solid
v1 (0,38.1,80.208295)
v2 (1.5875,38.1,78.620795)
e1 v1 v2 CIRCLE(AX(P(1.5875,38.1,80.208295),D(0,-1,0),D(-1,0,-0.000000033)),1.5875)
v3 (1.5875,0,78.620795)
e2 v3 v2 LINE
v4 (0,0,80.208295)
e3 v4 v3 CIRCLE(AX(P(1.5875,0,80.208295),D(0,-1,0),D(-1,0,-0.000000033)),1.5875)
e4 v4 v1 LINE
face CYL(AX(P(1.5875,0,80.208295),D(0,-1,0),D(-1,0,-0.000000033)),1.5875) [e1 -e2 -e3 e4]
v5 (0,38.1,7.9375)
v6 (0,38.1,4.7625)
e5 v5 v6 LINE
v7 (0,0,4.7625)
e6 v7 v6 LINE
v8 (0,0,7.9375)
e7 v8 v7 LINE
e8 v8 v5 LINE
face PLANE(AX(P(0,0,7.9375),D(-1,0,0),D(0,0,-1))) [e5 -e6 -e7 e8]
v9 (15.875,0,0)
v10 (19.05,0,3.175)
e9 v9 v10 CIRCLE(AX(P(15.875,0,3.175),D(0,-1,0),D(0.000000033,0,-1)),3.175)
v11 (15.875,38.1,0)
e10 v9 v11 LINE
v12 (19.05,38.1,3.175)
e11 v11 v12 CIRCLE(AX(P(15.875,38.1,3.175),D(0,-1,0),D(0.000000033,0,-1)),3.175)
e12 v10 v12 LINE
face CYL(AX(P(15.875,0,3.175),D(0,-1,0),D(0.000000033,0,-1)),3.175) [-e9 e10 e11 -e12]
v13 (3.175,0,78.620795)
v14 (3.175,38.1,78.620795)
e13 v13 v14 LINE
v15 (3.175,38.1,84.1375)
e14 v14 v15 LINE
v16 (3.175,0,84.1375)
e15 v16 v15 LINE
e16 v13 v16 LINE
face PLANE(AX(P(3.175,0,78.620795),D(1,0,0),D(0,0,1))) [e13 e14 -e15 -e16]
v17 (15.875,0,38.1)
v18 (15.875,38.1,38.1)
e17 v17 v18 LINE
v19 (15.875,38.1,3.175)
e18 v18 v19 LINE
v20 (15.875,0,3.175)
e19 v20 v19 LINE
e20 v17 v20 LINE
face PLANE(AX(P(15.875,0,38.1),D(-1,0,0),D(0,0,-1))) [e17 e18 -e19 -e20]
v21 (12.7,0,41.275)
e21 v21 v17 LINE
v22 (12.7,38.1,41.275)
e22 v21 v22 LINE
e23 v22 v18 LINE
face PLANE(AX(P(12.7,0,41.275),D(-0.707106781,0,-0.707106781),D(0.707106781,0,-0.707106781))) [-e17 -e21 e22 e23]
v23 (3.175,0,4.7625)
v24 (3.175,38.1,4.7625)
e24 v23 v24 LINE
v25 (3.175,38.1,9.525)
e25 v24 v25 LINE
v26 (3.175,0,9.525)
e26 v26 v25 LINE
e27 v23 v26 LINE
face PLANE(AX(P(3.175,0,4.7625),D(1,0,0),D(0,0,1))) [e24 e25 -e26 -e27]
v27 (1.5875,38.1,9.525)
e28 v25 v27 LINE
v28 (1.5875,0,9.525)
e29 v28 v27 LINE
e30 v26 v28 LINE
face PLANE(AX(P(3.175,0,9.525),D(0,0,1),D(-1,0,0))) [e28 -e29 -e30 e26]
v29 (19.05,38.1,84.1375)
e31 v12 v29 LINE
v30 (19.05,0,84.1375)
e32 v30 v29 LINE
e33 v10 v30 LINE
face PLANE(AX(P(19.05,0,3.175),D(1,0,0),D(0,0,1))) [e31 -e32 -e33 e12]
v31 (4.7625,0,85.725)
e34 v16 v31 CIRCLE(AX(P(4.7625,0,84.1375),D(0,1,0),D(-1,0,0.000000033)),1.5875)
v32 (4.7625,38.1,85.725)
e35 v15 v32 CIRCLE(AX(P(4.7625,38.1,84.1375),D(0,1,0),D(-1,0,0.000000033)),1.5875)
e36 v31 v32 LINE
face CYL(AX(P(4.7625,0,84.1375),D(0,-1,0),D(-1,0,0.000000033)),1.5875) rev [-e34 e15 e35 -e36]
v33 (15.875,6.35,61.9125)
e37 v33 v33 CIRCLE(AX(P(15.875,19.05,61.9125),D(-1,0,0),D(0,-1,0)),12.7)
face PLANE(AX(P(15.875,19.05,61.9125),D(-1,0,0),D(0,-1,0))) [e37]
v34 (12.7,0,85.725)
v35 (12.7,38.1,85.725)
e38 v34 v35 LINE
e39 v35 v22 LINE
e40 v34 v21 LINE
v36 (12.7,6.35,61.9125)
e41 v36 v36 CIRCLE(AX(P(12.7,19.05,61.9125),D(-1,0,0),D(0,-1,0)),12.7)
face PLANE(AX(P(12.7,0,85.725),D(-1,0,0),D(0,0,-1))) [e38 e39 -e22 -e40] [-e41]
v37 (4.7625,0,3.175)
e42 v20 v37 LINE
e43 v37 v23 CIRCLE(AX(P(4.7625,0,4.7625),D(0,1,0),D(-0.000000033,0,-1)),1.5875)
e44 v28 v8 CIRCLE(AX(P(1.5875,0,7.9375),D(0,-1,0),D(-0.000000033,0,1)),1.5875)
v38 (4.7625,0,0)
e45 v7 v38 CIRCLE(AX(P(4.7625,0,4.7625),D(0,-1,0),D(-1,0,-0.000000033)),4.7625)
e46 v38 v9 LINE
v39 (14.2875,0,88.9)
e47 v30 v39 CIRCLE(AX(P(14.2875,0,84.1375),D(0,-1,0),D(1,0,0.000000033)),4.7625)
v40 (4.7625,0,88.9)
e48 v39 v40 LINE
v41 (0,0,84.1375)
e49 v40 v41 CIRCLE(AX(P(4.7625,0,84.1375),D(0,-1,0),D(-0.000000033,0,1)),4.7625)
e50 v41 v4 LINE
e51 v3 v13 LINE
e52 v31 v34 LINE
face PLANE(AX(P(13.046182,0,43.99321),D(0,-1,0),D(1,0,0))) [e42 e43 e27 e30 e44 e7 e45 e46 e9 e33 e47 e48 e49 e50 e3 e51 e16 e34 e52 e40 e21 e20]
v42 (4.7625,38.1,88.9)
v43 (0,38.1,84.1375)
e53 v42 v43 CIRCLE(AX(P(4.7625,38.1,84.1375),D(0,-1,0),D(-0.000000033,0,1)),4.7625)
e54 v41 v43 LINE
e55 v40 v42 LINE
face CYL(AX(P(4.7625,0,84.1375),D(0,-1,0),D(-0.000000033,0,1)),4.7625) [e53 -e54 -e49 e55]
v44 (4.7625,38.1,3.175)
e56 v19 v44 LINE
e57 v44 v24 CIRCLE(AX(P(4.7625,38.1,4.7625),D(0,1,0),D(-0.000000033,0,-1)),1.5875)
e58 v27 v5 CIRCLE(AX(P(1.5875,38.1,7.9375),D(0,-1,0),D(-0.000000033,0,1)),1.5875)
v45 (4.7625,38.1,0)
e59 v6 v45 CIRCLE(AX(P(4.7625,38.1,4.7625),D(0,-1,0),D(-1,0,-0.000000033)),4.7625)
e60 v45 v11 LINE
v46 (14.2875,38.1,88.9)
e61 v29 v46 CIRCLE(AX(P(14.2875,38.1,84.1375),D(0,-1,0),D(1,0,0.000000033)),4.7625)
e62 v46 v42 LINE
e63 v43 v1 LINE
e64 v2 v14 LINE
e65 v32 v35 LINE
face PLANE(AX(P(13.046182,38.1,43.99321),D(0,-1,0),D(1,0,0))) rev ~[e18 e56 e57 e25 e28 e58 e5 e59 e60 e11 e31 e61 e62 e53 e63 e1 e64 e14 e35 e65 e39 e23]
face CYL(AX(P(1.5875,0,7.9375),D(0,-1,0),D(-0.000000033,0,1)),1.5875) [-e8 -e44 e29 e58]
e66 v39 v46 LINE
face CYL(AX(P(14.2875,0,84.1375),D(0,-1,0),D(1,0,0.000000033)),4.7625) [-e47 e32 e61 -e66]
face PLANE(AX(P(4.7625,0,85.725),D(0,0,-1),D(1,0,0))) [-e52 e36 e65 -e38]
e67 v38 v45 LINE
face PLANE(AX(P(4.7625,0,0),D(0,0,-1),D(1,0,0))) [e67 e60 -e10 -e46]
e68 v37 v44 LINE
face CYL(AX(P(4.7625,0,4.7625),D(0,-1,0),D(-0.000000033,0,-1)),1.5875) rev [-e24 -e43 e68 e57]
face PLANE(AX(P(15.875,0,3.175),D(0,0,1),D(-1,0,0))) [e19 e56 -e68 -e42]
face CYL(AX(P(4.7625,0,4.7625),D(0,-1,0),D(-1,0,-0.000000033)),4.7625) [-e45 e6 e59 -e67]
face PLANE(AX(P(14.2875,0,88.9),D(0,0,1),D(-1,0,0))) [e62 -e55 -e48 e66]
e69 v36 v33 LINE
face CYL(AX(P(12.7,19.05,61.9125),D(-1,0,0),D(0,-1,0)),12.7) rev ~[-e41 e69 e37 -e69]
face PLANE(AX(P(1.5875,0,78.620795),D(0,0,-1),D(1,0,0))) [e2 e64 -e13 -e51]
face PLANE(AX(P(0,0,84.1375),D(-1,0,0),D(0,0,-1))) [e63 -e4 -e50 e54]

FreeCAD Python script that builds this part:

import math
import FreeCAD as App
import Part
import Sketcher

V = App.Vector
Q = App.Units.Quantity

doc = App.newDocument("Part")
body = doc.addObject("PartDesign::Body", "Body")

sketch1 = body.newObject("Sketcher::SketchObject", "Sketch")
sketch1.AttachmentSupport = (doc.getObject("XZ_Plane"), [""])
sketch1.MapMode = "FlatFace"
sketch1.addGeometry([
    Part.ArcOfCircle(Part.Circle(V(4.8, 4.8, 0), V(0, 0, 1), 4.8), math.radians(-180), math.radians(-90)),
    Part.LineSegment(V(4.8, 0, 0), V(15.9, 0, 0)),
    Part.ArcOfCircle(Part.Circle(V(15.9, 3.2, 0), V(0, 0, 1), 3.2), math.radians(-90), math.radians(0)),
    Part.LineSegment(V(19.1, 3.2, 0), V(19.1, 84.1, 0)),
    Part.ArcOfCircle(Part.Circle(V(14.3, 84.1, 0), V(0, 0, 1), 4.8), math.radians(0), math.radians(90)),
    Part.LineSegment(V(14.3, 88.9, 0), V(4.8, 88.9, 0)),
    Part.ArcOfCircle(Part.Circle(V(4.8, 84.1, 0), V(0, 0, 1), 4.8), math.radians(90), math.radians(180)),
    Part.LineSegment(V(0, 84.1, 0), V(0, 80.2, 0)),
    Part.ArcOfCircle(Part.Circle(V(1.6, 80.2, 0), V(0, 0, 1), 1.6), math.radians(-180), math.radians(-90)),
    Part.LineSegment(V(1.6, 78.6, 0), V(3.2, 78.6, 0)),
    Part.LineSegment(V(3.2, 78.6, 0), V(3.2, 84.1, 0)),
    Part.ArcOfCircle(Part.Circle(V(4.8, 84.1, 0), V(0, 0, 1), 1.6), math.radians(90), math.radians(180)),
    Part.LineSegment(V(4.8, 85.7, 0), V(12.7, 85.7, 0)),
    Part.LineSegment(V(12.7, 85.7, 0), V(12.7, 41.3, 0)),
    Part.LineSegment(V(12.7, 41.3, 0), V(15.9, 38.1, 0)),
    Part.LineSegment(V(15.9, 38.1, 0), V(15.9, 3.2, 0)),
    Part.LineSegment(V(15.9, 3.2, 0), V(4.8, 3.2, 0)),
    Part.ArcOfCircle(Part.Circle(V(4.8, 4.8, 0), V(0, 0, 1), 1.6), math.radians(-180), math.radians(-90)),
    Part.LineSegment(V(3.2, 4.8, 0), V(3.2, 9.5, 0)),
    Part.LineSegment(V(3.2, 9.5, 0), V(1.6, 9.5, 0)),
    Part.ArcOfCircle(Part.Circle(V(1.6, 7.9, 0), V(0, 0, 1), 1.6), math.radians(90), math.radians(180)),
    Part.LineSegment(V(0, 7.9, 0), V(0, 4.8, 0)),
], False)
sketch1.addConstraint([
    Sketcher.Constraint("Tangent", 0, 2, 1, 1),
    Sketcher.Constraint("Tangent", 1, 2, 2, 1),
    Sketcher.Constraint("Tangent", 2, 2, 3, 1),
    Sketcher.Constraint("Tangent", 3, 2, 4, 1),
    Sketcher.Constraint("Tangent", 4, 2, 5, 1),
    Sketcher.Constraint("Tangent", 5, 2, 6, 1),
    Sketcher.Constraint("Tangent", 6, 2, 7, 1),
    Sketcher.Constraint("Tangent", 7, 2, 8, 1),
    Sketcher.Constraint("Tangent", 8, 2, 9, 1),
    Sketcher.Constraint("Coincident", 9, 2, 10, 1),
    Sketcher.Constraint("Tangent", 10, 2, 11, 2),
    Sketcher.Constraint("Tangent", 11, 1, 12, 1),
    Sketcher.Constraint("Coincident", 12, 2, 13, 1),
    Sketcher.Constraint("Coincident", 13, 2, 14, 1),
    Sketcher.Constraint("Coincident", 14, 2, 15, 1),
    Sketcher.Constraint("Coincident", 15, 2, 16, 1),
    Sketcher.Constraint("Tangent", 16, 2, 17, 2),
    Sketcher.Constraint("Tangent", 17, 1, 18, 1),
    Sketcher.Constraint("Coincident", 18, 2, 19, 1),
    Sketcher.Constraint("Tangent", 19, 2, 20, 1),
    Sketcher.Constraint("Tangent", 20, 2, 21, 1),
    Sketcher.Constraint("Tangent", 21, 2, 0, 1),
    Sketcher.Constraint("Horizontal", 1),
    Sketcher.Constraint("Vertical", 3),
    Sketcher.Constraint("Horizontal", 5),
    Sketcher.Constraint("Vertical", 7),
    Sketcher.Constraint("Horizontal", 9),
    Sketcher.Constraint("Vertical", 10),
    Sketcher.Constraint("Horizontal", 12),
    Sketcher.Constraint("Vertical", 13),
    Sketcher.Constraint("Vertical", 15),
    Sketcher.Constraint("Horizontal", 16),
    Sketcher.Constraint("Vertical", 18),
    Sketcher.Constraint("Horizontal", 19),
    Sketcher.Constraint("Vertical", 21),
    Sketcher.Constraint("Coincident", 11, 3, 6, 3),
    Sketcher.Constraint("Coincident", 17, 3, 0, 3),
    Sketcher.Constraint("Coincident", 15, 2, 2, 3),
    Sketcher.Constraint("Equal", 0, 4),
    Sketcher.Constraint("Equal", 4, 6),
    Sketcher.Constraint("Equal", 8, 11),
    Sketcher.Constraint("Equal", 11, 17),
    Sketcher.Constraint("Equal", 17, 20),
    Sketcher.Constraint("PointOnObject", 0, 2, -1),
    Sketcher.Constraint("PointOnObject", 6, 2, -2),
    Sketcher.Constraint("PointOnObject", 20, 2, -2),
    Sketcher.Constraint("Angle", 14, Q("-45 deg")),
    Sketcher.Constraint("Radius", 0, Q("0.1875 in")),
    Sketcher.Constraint("Radius", 2, Q("0.125 in")),
    Sketcher.Constraint("DistanceY", 20, 3, 6, 3, Q("3 in")),
    Sketcher.Constraint("DistanceY", 13, 2, 13, 1, Q("1.75 in")),
    Sketcher.Constraint("DistanceY", -1, 1, 4, 2, Q("3.5 in")),
    Sketcher.Constraint("DistanceX", -1, 1, 12, 2, Q("0.5 in")),
    Sketcher.Constraint("DistanceY", -1, 1, 14, 2, Q("1.5 in")),
    Sketcher.Constraint("DistanceY", 7, 2, 7, 1, 3.929205),
])
pad1 = body.newObject("PartDesign::Pad", "Pad")
pad1.Profile = sketch1
pad1.Length = Q("1.5 in")
pad1.Reversed = True

sketch2 = body.newObject("Sketcher::SketchObject", "Sketch001")
sketch2.AttachmentSupport = (doc.getObject("YZ_Plane"), [""])
sketch2.MapMode = "FlatFace"
sketch2.AttachmentOffset = App.Placement(V(0, 0, 0.5 * 25.4), App.Rotation())
sketch2.addGeometry(Part.Circle(V(19, 62, 0), V(0, 0, 1), 13), False)
sketch2.addConstraint([
    Sketcher.Constraint("Diameter", 0, Q("1 in")),
    Sketcher.Constraint("DistanceX", -1, 1, 0, 3, Q("0.75 in")),
    Sketcher.Constraint("DistanceY", -1, 1, 0, 3, Q("2.4375 in")),
])
pocket1 = body.newObject("PartDesign::Pocket", "Pocket")
pocket1.Profile = sketch2
pocket1.Length = Q("0.125 in")
pocket1.Reversed = True

doc.recompute()
